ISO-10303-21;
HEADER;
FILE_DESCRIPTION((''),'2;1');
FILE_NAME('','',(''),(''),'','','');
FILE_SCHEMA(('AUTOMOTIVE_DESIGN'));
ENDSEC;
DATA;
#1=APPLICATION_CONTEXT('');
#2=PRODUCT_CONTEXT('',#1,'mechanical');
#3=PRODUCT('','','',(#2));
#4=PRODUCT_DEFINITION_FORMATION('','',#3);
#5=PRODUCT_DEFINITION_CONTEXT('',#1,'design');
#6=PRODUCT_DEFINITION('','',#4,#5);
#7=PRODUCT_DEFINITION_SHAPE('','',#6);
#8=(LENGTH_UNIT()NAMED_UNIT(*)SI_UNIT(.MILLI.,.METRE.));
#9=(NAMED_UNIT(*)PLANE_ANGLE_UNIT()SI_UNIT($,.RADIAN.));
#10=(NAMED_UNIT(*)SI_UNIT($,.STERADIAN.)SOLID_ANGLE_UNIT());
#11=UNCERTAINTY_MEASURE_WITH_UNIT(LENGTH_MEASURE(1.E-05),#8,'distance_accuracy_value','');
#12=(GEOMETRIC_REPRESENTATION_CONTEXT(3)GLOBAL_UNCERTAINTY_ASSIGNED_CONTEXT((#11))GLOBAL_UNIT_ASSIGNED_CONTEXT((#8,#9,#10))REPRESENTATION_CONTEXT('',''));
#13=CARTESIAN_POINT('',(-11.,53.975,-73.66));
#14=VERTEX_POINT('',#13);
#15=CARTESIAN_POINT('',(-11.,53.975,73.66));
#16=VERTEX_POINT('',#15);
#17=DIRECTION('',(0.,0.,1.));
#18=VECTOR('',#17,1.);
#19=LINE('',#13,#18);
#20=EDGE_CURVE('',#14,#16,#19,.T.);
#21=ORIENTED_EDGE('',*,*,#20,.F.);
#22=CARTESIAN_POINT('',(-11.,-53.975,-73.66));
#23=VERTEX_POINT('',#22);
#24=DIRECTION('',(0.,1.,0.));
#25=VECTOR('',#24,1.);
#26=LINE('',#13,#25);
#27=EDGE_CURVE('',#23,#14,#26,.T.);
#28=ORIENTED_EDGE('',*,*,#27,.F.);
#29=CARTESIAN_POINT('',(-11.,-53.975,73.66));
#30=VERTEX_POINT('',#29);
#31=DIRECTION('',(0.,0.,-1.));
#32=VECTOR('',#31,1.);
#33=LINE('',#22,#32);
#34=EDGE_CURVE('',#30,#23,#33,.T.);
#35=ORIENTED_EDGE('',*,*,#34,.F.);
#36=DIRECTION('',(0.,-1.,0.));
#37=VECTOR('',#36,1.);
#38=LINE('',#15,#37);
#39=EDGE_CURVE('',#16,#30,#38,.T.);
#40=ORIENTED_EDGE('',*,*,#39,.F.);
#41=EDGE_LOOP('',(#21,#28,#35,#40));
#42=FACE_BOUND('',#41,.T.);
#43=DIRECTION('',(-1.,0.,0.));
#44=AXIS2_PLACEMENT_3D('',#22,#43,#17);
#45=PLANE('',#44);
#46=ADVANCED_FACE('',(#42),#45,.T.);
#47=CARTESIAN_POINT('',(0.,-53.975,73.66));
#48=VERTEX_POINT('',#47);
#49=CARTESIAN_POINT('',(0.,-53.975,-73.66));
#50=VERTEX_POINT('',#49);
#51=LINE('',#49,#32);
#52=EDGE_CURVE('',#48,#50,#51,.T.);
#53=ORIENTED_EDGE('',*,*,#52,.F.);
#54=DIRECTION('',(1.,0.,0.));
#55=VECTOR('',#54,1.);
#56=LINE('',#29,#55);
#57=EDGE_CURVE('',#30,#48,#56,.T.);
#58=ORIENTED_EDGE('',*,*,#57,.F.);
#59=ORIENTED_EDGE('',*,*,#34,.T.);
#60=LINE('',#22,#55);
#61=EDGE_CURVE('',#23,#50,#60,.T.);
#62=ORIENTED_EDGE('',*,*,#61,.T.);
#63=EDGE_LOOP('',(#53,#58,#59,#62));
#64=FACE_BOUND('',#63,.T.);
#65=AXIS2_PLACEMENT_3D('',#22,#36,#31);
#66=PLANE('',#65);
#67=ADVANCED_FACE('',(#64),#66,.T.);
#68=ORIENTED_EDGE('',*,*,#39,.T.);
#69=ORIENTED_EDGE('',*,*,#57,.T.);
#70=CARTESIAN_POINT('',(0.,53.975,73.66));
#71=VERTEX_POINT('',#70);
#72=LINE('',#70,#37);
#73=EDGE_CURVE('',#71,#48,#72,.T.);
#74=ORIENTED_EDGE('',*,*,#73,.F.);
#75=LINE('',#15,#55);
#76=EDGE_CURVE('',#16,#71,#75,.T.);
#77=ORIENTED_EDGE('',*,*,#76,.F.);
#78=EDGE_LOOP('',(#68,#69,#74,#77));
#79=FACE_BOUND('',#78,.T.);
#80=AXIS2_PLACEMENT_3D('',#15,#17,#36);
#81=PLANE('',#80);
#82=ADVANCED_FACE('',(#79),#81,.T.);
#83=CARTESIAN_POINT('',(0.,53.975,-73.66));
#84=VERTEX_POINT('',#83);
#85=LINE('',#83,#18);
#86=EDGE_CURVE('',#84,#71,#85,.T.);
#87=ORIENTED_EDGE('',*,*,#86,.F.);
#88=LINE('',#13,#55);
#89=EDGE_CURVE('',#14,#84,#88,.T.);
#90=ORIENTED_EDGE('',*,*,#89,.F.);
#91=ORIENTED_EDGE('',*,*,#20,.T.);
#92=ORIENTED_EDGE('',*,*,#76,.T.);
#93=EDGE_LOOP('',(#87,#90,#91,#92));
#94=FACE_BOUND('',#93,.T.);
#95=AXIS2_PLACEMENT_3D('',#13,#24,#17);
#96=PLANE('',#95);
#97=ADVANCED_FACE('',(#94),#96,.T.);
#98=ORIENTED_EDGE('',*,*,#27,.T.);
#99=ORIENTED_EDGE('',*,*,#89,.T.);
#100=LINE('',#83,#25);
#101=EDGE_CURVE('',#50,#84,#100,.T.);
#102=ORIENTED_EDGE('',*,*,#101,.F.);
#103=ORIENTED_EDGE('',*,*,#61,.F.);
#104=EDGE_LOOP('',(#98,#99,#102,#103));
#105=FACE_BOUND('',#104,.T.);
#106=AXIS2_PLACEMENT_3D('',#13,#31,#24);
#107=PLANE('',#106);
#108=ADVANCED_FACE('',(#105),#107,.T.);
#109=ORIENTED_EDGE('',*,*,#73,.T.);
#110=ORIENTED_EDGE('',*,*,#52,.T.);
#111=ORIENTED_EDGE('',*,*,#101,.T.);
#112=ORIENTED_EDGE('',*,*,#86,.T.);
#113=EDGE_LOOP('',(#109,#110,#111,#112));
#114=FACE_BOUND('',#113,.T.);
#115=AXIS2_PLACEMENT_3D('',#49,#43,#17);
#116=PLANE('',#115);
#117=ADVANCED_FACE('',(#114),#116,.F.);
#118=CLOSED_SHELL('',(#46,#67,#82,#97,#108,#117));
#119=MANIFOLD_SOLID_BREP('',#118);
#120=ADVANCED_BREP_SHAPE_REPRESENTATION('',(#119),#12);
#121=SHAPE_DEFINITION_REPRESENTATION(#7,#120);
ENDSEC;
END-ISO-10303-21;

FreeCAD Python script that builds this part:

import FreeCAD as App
import Part
import Sketcher

V = App.Vector
Q = App.Units.Quantity

doc = App.newDocument("Part")
body = doc.addObject("PartDesign::Body", "Body")

sketch1 = doc.addObject("Sketcher::SketchObject", "Sketch")
body.addObject(sketch1)
sketch1.AttachmentSupport = (doc.YZ_Plane, [""])
sketch1.MapMode = "FlatFace"
sketch1.addGeometry([
    Part.LineSegment(V(53.975, 73.66, 0), V(-53.975, 73.66, 0)),
    Part.LineSegment(V(-53.975, 73.66, 0), V(-53.975, -73.66, 0)),
    Part.LineSegment(V(-53.975, -73.66, 0), V(53.975, -73.66, 0)),
    Part.LineSegment(V(53.975, -73.66, 0), V(53.975, 73.66, 0)),
], False)
sketch1.addConstraint([
    Sketcher.Constraint("Coincident", 0, 2, 1, 1),
    Sketcher.Constraint("Coincident", 1, 2, 2, 1),
    Sketcher.Constraint("Coincident", 2, 2, 3, 1),
    Sketcher.Constraint("Coincident", 3, 2, 0, 1),
    Sketcher.Constraint("Horizontal", 0),
    Sketcher.Constraint("Vertical", 1),
    Sketcher.Constraint("Horizontal", 2),
    Sketcher.Constraint("Vertical", 3),
    Sketcher.Constraint("Symmetric", 0, 2, 2, 2, -1, 1),
    Sketcher.Constraint("DistanceY", 1, 2, 1, 1, Q("5.8 in")),
    Sketcher.Constraint("DistanceX", 0, 2, 0, 1, Q("4.25 in")),
])
pad1 = doc.addObject("PartDesign::Pad", "Pad")
body.addObject(pad1)
pad1.Profile = sketch1
pad1.Length = 11
pad1.Reversed = True

doc.recompute()
